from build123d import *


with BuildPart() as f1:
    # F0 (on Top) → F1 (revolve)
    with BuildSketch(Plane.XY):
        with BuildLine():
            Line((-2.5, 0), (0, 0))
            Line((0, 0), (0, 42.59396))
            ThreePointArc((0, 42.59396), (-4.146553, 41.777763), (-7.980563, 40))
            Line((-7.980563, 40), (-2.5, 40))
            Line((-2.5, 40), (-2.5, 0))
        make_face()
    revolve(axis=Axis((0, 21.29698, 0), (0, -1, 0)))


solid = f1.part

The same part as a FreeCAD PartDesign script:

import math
import FreeCAD as App
import Part
import Sketcher
Q = App.Units.Quantity

doc = App.newDocument("Part")
body = doc.addObject("PartDesign::Body", "Body")

sketch1 = body.newObject("Sketcher::SketchObject", "Sketch")
sketch1.AttachmentSupport = (doc.getObject("XY_Plane"), [""])
sketch1.MapMode = "FlatFace"
sketch1.addGeometry([
    Part.LineSegment(App.Vector(-2.5, 0, 0), App.Vector(0, 0, 0)),
    Part.LineSegment(App.Vector(0, 0, 0), App.Vector(0, 42.6, 0)),
    Part.ArcOfCircle(Part.Circle(App.Vector(1.3, 25, 0), App.Vector(0, 0, 1), 17.7), math.radians(94), math.radians(122)),
    Part.LineSegment(App.Vector(-8, 40, 0), App.Vector(-2.5, 40, 0)),
    Part.LineSegment(App.Vector(-2.5, 40, 0), App.Vector(-2.5, 0, 0)),
], False)
sketch1.addConstraint([
    Sketcher.Constraint("Coincident", 0, 2, 1, 1),
    Sketcher.Constraint("Coincident", 1, 2, 2, 1),
    Sketcher.Constraint("Coincident", 2, 2, 3, 1),
    Sketcher.Constraint("Coincident", 3, 2, 4, 1),
    Sketcher.Constraint("Coincident", 4, 2, 0, 1),
    Sketcher.Constraint("Horizontal", 0),
    Sketcher.Constraint("Vertical", 1),
    Sketcher.Constraint("Horizontal", 3),
    Sketcher.Constraint("Vertical", 4),
    Sketcher.Constraint("Coincident", 0, 2, -1, 1),
    Sketcher.Constraint("DistanceY", 4, 2, 4, 1, Q("40 mm")),
    Sketcher.Constraint("DistanceX", 0, 1, 0, 2, Q("2.5 mm")),
    Sketcher.Constraint("Radius", 2, Q("17.664273 mm")),
    Sketcher.Constraint("DistanceY", 1, 1, 1, 2, Q("42.59396 mm")),
    Sketcher.Constraint("DistanceX", 3, 1, 3, 2, Q("5.480563 mm")),
])
revolution = body.newObject("PartDesign::Revolution", "Revolution")
revolution.Profile = sketch1
revolution.ReferenceAxis = (sketch1, ["V_Axis"])
revolution.Angle = 360

doc.recompute()
